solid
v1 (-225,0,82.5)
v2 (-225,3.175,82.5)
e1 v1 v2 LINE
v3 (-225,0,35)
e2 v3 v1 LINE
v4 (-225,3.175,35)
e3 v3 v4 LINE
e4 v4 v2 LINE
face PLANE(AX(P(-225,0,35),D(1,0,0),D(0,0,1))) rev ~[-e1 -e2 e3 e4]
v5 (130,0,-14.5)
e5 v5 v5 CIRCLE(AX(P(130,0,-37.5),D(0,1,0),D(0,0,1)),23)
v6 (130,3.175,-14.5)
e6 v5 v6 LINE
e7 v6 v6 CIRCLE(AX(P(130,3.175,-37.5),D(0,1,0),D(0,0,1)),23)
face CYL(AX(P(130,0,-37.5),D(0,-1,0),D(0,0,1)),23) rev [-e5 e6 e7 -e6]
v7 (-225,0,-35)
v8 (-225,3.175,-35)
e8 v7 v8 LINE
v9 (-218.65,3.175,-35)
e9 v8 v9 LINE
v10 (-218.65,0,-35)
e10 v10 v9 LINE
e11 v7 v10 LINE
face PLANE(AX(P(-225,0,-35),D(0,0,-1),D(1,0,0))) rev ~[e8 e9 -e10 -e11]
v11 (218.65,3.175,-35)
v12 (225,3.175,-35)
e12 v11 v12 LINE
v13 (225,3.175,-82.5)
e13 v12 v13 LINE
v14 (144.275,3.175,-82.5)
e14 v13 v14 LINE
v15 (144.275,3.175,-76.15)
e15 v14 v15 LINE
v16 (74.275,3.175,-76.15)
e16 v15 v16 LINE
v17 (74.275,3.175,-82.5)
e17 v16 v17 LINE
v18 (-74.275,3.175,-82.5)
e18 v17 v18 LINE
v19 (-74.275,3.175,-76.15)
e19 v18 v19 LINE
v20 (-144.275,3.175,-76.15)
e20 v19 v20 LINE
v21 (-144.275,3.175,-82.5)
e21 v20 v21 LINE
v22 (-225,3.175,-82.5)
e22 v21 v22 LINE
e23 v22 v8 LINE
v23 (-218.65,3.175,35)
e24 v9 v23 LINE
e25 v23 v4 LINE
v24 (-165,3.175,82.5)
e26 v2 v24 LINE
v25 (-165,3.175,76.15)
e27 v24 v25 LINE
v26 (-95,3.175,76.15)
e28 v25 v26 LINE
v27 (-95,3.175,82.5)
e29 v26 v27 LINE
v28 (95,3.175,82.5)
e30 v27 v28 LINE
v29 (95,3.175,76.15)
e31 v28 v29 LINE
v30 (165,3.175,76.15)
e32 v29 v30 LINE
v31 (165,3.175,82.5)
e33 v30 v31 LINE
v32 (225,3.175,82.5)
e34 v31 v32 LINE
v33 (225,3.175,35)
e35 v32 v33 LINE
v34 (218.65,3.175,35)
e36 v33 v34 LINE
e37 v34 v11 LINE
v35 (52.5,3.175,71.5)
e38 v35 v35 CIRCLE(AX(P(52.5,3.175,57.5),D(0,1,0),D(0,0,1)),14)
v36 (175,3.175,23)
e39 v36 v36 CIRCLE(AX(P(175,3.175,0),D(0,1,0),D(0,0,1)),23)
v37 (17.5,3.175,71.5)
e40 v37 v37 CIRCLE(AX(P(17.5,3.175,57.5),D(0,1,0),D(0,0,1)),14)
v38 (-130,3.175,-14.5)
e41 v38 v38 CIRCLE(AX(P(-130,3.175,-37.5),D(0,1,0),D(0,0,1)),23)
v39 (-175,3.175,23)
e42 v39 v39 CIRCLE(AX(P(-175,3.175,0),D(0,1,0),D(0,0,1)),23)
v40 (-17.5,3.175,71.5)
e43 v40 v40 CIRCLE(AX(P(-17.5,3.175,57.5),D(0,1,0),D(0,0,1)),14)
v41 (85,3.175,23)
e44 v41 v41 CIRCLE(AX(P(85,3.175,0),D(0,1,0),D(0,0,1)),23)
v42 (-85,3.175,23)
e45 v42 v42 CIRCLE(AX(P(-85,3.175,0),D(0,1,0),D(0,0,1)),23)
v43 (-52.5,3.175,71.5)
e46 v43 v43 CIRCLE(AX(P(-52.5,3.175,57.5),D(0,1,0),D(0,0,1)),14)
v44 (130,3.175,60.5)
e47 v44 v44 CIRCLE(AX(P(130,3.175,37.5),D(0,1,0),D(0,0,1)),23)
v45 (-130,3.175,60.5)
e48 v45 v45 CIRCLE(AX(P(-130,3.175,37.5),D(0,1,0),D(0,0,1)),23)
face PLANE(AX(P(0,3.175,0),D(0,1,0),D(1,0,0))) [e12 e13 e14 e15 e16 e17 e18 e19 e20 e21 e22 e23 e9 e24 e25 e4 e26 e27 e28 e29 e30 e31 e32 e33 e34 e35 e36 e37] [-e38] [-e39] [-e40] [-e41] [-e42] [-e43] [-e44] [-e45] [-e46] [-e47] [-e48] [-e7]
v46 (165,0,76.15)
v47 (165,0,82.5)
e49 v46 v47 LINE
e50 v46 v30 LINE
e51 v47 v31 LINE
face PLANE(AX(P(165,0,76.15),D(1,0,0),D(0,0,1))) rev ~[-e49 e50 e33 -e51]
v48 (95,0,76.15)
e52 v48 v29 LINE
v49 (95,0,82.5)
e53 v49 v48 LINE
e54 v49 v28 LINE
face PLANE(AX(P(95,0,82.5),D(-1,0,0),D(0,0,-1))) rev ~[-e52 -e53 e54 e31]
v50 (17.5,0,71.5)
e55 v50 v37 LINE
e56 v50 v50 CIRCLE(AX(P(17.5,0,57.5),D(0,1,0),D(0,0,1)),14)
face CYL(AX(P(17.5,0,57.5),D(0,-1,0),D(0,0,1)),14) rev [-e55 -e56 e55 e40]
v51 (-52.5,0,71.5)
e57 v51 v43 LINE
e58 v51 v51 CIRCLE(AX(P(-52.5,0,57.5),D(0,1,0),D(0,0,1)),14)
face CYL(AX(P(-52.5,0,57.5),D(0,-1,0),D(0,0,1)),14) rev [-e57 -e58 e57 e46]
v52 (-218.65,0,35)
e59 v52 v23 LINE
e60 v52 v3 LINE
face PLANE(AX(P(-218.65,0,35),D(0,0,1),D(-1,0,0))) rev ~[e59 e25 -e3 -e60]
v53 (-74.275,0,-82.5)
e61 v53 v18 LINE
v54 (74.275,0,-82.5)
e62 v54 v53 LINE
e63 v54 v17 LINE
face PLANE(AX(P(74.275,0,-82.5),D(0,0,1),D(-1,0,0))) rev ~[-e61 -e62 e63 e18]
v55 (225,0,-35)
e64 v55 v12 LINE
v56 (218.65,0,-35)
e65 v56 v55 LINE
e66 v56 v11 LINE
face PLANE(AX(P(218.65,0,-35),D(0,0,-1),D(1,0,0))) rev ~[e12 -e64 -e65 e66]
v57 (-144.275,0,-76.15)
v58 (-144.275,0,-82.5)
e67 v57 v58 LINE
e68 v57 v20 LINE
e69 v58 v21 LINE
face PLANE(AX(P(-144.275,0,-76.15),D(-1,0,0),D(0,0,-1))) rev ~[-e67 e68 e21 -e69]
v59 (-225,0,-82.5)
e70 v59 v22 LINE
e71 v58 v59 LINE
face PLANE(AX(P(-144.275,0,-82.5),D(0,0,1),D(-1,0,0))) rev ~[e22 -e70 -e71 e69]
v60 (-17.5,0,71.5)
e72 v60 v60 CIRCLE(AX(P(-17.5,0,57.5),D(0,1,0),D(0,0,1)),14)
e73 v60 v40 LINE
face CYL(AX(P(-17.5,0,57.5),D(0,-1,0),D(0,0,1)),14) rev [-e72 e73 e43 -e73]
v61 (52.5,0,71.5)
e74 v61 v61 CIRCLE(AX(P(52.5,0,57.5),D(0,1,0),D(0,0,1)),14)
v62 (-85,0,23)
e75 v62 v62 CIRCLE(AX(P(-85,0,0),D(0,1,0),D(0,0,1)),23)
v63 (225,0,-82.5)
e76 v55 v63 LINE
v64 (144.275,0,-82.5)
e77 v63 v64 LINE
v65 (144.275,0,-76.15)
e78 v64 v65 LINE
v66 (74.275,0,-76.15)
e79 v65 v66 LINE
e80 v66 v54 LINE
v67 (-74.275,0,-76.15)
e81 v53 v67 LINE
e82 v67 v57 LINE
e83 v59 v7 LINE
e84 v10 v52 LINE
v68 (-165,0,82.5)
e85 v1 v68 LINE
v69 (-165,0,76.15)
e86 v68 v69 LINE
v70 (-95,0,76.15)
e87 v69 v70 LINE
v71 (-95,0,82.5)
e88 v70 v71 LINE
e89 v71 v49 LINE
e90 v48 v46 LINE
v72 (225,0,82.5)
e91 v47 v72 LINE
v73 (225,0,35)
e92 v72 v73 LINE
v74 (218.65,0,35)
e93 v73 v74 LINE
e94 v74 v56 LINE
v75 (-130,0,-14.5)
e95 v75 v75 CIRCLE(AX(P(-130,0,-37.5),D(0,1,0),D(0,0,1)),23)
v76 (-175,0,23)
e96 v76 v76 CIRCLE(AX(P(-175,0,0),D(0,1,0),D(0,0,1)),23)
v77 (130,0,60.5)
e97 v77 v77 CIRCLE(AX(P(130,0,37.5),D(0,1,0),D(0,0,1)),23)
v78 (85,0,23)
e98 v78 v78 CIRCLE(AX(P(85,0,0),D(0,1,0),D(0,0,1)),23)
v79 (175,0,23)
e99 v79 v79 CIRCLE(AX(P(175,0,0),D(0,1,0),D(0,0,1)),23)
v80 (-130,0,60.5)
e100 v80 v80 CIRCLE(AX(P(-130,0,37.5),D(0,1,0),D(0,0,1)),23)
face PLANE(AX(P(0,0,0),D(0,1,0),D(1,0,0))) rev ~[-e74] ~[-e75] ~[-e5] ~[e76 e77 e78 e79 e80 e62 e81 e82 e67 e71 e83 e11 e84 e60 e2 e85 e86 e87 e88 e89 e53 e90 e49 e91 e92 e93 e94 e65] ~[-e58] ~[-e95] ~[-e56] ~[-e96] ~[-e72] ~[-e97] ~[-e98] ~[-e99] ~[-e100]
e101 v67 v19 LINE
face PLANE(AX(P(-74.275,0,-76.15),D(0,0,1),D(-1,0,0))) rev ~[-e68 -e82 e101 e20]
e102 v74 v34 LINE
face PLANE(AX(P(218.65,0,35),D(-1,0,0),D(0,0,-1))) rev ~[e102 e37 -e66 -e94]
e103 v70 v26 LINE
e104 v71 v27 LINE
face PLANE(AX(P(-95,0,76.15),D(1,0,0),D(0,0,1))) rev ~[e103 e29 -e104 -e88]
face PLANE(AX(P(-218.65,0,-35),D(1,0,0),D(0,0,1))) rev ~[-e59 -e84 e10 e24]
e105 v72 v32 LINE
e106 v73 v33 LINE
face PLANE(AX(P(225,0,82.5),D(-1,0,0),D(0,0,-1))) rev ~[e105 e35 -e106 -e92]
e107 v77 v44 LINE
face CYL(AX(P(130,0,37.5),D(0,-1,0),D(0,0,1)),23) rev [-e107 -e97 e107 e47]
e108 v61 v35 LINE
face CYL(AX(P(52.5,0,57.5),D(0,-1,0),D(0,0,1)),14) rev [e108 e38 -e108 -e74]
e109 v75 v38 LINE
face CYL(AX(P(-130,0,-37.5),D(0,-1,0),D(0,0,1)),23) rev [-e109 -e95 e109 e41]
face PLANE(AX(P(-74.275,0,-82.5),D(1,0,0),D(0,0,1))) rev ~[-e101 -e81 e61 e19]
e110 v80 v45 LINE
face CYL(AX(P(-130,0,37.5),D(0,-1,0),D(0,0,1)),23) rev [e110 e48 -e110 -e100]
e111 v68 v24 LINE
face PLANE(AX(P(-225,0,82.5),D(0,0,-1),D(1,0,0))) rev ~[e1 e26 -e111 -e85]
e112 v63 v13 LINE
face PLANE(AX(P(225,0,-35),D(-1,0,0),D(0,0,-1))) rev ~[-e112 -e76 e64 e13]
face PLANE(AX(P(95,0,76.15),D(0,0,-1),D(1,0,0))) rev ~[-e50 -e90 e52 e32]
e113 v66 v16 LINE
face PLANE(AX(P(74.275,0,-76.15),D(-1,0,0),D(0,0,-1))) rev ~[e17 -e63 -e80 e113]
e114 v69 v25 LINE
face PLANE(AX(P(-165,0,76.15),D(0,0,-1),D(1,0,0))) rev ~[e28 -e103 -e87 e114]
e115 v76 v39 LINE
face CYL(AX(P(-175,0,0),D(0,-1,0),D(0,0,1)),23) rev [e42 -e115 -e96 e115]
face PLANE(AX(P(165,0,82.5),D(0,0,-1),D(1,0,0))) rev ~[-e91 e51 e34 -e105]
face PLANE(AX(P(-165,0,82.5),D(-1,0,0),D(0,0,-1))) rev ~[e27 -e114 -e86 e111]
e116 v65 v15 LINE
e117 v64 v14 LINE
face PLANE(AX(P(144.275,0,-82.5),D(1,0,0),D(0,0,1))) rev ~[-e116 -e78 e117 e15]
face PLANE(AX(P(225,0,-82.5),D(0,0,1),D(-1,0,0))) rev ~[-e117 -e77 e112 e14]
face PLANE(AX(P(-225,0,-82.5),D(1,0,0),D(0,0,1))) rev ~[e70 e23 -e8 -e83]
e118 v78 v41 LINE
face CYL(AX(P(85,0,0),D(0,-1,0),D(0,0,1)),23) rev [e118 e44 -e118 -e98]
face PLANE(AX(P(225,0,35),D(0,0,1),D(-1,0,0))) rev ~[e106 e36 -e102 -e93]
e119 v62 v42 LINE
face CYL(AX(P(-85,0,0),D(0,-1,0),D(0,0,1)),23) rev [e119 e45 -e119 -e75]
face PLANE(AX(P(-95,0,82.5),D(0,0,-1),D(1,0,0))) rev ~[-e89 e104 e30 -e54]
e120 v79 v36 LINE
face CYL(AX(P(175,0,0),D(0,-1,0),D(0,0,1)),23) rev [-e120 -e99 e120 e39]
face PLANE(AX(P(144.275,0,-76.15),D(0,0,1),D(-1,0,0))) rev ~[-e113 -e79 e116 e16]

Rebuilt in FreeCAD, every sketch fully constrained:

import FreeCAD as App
import Part
import Sketcher
from FreeCAD import Vector
Q = App.Units.Quantity


def add_polygon(sketch, points):
    """Adds a closed chain of lines whose ends are joined by coincident constraints."""
    first, n = sketch.GeometryCount, len(points)
    for a, b in zip(points, points[1:] + points[:1]):
        sketch.addGeometry(Part.LineSegment(App.Vector(*a, 0), App.Vector(*b, 0)), False)
    for i in range(n):
        sketch.addConstraint(Sketcher.Constraint("Coincident", first + i, 2, first + (i + 1) % n, 1))

doc = App.newDocument("Part")
body = doc.addObject("PartDesign::Body", "Body")

sketch1 = body.newObject("Sketcher::SketchObject", "Sketch")
sketch1.AttachmentSupport = (doc.getObject("XZ_Plane"), [""])
sketch1.MapMode = "FlatFace"
add_polygon(sketch1, [(74.275, -82.5), (-74.275, -82.5), (-74.275, -76.15), (-144.275, -76.15), (-144.275, -82.5), (-225, -82.5), (-225, -35), (-218.65, -35), (-218.65, 35), (-225, 35), (-225, 82.5), (-165, 82.5), (-165, 76.15), (-95, 76.15), (-95, 82.5), (95, 82.5), (95, 76.15), (165, 76.15), (165, 82.5), (225, 82.5), (225, 35), (218.65, 35), (218.65, -35), (225, -35), (225, -82.5), (144.275, -82.5), (144.275, -76.15), (74.275, -76.15)])
sketch1.addGeometry(Part.Circle(Vector(-52.5, 57.5, 0), Vector(0, 0, 1), 14), False)
sketch1.addGeometry(Part.Circle(Vector(-17.5, 57.5, 0), Vector(0, 0, 1), 14), False)
sketch1.addGeometry(Part.Circle(Vector(-130, 37.5, 0), Vector(0, 0, 1), 23), False)
sketch1.addGeometry(Part.Circle(Vector(17.5, 57.5, 0), Vector(0, 0, 1), 14), False)
sketch1.addGeometry(Part.Circle(Vector(52.5, 57.5, 0), Vector(0, 0, 1), 14), False)
sketch1.addGeometry(Part.Circle(Vector(130, 37.5, 0), Vector(0, 0, 1), 23), False)
sketch1.addGeometry(Part.Circle(Vector(-175, 0, 0), Vector(0, 0, 1), 23), False)
sketch1.addGeometry(Part.Circle(Vector(-85, 0, 0), Vector(0, 0, 1), 23), False)
sketch1.addGeometry(Part.Circle(Vector(-130, -37.5, 0), Vector(0, 0, 1), 23), False)
sketch1.addGeometry(Part.Circle(Vector(85, 0, 0), Vector(0, 0, 1), 23), False)
sketch1.addGeometry(Part.Circle(Vector(175, 0, 0), Vector(0, 0, 1), 23), False)
sketch1.addGeometry(Part.Circle(Vector(130, -37.5, 0), Vector(0, 0, 1), 23), False)
sketch1.addConstraint([
    Sketcher.Constraint("Horizontal", 0),
    Sketcher.Constraint("Vertical", 1),
    Sketcher.Constraint("Horizontal", 2),
    Sketcher.Constraint("Vertical", 3),
    Sketcher.Constraint("Horizontal", 4),
    Sketcher.Constraint("Vertical", 5),
    Sketcher.Constraint("Horizontal", 6),
    Sketcher.Constraint("Vertical", 7),
    Sketcher.Constraint("Horizontal", 8),
    Sketcher.Constraint("Vertical", 9),
    Sketcher.Constraint("Horizontal", 10),
    Sketcher.Constraint("Vertical", 11),
    Sketcher.Constraint("Horizontal", 12),
    Sketcher.Constraint("Vertical", 13),
    Sketcher.Constraint("Horizontal", 14),
    Sketcher.Constraint("Vertical", 15),
    Sketcher.Constraint("Horizontal", 16),
    Sketcher.Constraint("Vertical", 17),
    Sketcher.Constraint("Horizontal", 18),
    Sketcher.Constraint("Vertical", 19),
    Sketcher.Constraint("Horizontal", 20),
    Sketcher.Constraint("Vertical", 21),
    Sketcher.Constraint("Horizontal", 22),
    Sketcher.Constraint("Vertical", 23),
    Sketcher.Constraint("Horizontal", 24),
    Sketcher.Constraint("Vertical", 25),
    Sketcher.Constraint("Horizontal", 26),
    Sketcher.Constraint("Vertical", 27),
    Sketcher.Constraint("Equal", 28, 29),
    Sketcher.Constraint("Equal", 29, 31),
    Sketcher.Constraint("Equal", 31, 32),
    Sketcher.Constraint("Equal", 30, 33),
    Sketcher.Constraint("Equal", 33, 34),
    Sketcher.Constraint("Equal", 34, 35),
    Sketcher.Constraint("Equal", 35, 36),
    Sketcher.Constraint("Equal", 36, 37),
    Sketcher.Constraint("Equal", 37, 38),
    Sketcher.Constraint("Equal", 38, 39),
    Sketcher.Constraint("Symmetric", 33, 3, 36, 3, -1, 1),
    Sketcher.Constraint("Symmetric", 35, 3, 37, 3, -1, 1),
    Sketcher.Constraint("Symmetric", 34, 3, 38, 3, -1, 1),
    Sketcher.Constraint("Symmetric", 30, 3, 39, 3, -1, 1),
    Sketcher.Constraint("Symmetric", 4, 2, 18, 2, -1, 1),
    Sketcher.Constraint("Symmetric", 6, 2, 20, 2, -1, 1),
    Sketcher.Constraint("Symmetric", 8, 2, 22, 2, -1, 1),
    Sketcher.Constraint("Symmetric", 29, 3, 31, 3, -2),
    Sketcher.Constraint("Symmetric", 28, 3, 32, 3, -2),
    Sketcher.Constraint("Symmetric", 30, 3, 33, 3, -2),
    Sketcher.Constraint("Symmetric", 12, 2, 15, 2, -2),
    Sketcher.Constraint("Symmetric", 10, 2, 17, 2, -2),
    Sketcher.Constraint("Symmetric", 8, 2, 19, 2, -2),
    Sketcher.Constraint("Symmetric", 3, 2, 24, 2, -2),
    Sketcher.Constraint("Symmetric", 1, 2, 26, 2, -2),
    Sketcher.Constraint("PointOnObject", 34, 3, -1),
    Sketcher.Constraint("PointOnObject", 35, 3, -1),
    Sketcher.Constraint("Horizontal", 28, 3, 29, 3),
    Sketcher.Constraint("Horizontal", 0, 2, 3, 2),
    Sketcher.Constraint("Horizontal", 10, 2, 13, 2),
    Sketcher.Constraint("Equal", 2, 12),
    Sketcher.Constraint("Equal", 22, 1),
    Sketcher.Constraint("Equal", 26, 7),
    Sketcher.Constraint("Equal", 3, 11),
    Sketcher.Constraint("Diameter", 28, Q("28 mm")),
    Sketcher.Constraint("Diameter", 30, Q("46 mm")),
    Sketcher.Constraint("DistanceX", 2, 2, 2, 1, Q("70 mm")),
    Sketcher.Constraint("DistanceX", 10, 1, 10, 2, Q("60 mm")),
    Sketcher.Constraint("DistanceX", 14, 1, 14, 2, Q("190 mm")),
    Sketcher.Constraint("DistanceY", 5, 1, 5, 2, Q("47.5 mm")),
    Sketcher.Constraint("DistanceX", 30, 3, -1, 1, Q("130 mm")),
    Sketcher.Constraint("DistanceX", 34, 3, -1, 1, Q("175 mm")),
    Sketcher.Constraint("DistanceX", 35, 3, -1, 1, Q("85 mm")),
    Sketcher.Constraint("DistanceX", 28, 3, 29, 3, Q("35 mm")),
    Sketcher.Constraint("DistanceY", 30, 3, 28, 3, Q("20 mm")),
    Sketcher.Constraint("DistanceX", 29, 3, 31, 3, Q("35 mm")),
    Sketcher.Constraint("DistanceY", 36, 3, 30, 3, Q("75 mm")),
    Sketcher.Constraint("DistanceX", 0, 2, 0, 1, Q("148.55 mm")),
    Sketcher.Constraint("DistanceX", 6, 1, 6, 2, Q("6.35 mm")),
])
pad1 = body.newObject("PartDesign::Pad", "Pad")
pad1.Profile = sketch1
pad1.Length = 3.175
pad1.Reversed = True

doc.recompute()
